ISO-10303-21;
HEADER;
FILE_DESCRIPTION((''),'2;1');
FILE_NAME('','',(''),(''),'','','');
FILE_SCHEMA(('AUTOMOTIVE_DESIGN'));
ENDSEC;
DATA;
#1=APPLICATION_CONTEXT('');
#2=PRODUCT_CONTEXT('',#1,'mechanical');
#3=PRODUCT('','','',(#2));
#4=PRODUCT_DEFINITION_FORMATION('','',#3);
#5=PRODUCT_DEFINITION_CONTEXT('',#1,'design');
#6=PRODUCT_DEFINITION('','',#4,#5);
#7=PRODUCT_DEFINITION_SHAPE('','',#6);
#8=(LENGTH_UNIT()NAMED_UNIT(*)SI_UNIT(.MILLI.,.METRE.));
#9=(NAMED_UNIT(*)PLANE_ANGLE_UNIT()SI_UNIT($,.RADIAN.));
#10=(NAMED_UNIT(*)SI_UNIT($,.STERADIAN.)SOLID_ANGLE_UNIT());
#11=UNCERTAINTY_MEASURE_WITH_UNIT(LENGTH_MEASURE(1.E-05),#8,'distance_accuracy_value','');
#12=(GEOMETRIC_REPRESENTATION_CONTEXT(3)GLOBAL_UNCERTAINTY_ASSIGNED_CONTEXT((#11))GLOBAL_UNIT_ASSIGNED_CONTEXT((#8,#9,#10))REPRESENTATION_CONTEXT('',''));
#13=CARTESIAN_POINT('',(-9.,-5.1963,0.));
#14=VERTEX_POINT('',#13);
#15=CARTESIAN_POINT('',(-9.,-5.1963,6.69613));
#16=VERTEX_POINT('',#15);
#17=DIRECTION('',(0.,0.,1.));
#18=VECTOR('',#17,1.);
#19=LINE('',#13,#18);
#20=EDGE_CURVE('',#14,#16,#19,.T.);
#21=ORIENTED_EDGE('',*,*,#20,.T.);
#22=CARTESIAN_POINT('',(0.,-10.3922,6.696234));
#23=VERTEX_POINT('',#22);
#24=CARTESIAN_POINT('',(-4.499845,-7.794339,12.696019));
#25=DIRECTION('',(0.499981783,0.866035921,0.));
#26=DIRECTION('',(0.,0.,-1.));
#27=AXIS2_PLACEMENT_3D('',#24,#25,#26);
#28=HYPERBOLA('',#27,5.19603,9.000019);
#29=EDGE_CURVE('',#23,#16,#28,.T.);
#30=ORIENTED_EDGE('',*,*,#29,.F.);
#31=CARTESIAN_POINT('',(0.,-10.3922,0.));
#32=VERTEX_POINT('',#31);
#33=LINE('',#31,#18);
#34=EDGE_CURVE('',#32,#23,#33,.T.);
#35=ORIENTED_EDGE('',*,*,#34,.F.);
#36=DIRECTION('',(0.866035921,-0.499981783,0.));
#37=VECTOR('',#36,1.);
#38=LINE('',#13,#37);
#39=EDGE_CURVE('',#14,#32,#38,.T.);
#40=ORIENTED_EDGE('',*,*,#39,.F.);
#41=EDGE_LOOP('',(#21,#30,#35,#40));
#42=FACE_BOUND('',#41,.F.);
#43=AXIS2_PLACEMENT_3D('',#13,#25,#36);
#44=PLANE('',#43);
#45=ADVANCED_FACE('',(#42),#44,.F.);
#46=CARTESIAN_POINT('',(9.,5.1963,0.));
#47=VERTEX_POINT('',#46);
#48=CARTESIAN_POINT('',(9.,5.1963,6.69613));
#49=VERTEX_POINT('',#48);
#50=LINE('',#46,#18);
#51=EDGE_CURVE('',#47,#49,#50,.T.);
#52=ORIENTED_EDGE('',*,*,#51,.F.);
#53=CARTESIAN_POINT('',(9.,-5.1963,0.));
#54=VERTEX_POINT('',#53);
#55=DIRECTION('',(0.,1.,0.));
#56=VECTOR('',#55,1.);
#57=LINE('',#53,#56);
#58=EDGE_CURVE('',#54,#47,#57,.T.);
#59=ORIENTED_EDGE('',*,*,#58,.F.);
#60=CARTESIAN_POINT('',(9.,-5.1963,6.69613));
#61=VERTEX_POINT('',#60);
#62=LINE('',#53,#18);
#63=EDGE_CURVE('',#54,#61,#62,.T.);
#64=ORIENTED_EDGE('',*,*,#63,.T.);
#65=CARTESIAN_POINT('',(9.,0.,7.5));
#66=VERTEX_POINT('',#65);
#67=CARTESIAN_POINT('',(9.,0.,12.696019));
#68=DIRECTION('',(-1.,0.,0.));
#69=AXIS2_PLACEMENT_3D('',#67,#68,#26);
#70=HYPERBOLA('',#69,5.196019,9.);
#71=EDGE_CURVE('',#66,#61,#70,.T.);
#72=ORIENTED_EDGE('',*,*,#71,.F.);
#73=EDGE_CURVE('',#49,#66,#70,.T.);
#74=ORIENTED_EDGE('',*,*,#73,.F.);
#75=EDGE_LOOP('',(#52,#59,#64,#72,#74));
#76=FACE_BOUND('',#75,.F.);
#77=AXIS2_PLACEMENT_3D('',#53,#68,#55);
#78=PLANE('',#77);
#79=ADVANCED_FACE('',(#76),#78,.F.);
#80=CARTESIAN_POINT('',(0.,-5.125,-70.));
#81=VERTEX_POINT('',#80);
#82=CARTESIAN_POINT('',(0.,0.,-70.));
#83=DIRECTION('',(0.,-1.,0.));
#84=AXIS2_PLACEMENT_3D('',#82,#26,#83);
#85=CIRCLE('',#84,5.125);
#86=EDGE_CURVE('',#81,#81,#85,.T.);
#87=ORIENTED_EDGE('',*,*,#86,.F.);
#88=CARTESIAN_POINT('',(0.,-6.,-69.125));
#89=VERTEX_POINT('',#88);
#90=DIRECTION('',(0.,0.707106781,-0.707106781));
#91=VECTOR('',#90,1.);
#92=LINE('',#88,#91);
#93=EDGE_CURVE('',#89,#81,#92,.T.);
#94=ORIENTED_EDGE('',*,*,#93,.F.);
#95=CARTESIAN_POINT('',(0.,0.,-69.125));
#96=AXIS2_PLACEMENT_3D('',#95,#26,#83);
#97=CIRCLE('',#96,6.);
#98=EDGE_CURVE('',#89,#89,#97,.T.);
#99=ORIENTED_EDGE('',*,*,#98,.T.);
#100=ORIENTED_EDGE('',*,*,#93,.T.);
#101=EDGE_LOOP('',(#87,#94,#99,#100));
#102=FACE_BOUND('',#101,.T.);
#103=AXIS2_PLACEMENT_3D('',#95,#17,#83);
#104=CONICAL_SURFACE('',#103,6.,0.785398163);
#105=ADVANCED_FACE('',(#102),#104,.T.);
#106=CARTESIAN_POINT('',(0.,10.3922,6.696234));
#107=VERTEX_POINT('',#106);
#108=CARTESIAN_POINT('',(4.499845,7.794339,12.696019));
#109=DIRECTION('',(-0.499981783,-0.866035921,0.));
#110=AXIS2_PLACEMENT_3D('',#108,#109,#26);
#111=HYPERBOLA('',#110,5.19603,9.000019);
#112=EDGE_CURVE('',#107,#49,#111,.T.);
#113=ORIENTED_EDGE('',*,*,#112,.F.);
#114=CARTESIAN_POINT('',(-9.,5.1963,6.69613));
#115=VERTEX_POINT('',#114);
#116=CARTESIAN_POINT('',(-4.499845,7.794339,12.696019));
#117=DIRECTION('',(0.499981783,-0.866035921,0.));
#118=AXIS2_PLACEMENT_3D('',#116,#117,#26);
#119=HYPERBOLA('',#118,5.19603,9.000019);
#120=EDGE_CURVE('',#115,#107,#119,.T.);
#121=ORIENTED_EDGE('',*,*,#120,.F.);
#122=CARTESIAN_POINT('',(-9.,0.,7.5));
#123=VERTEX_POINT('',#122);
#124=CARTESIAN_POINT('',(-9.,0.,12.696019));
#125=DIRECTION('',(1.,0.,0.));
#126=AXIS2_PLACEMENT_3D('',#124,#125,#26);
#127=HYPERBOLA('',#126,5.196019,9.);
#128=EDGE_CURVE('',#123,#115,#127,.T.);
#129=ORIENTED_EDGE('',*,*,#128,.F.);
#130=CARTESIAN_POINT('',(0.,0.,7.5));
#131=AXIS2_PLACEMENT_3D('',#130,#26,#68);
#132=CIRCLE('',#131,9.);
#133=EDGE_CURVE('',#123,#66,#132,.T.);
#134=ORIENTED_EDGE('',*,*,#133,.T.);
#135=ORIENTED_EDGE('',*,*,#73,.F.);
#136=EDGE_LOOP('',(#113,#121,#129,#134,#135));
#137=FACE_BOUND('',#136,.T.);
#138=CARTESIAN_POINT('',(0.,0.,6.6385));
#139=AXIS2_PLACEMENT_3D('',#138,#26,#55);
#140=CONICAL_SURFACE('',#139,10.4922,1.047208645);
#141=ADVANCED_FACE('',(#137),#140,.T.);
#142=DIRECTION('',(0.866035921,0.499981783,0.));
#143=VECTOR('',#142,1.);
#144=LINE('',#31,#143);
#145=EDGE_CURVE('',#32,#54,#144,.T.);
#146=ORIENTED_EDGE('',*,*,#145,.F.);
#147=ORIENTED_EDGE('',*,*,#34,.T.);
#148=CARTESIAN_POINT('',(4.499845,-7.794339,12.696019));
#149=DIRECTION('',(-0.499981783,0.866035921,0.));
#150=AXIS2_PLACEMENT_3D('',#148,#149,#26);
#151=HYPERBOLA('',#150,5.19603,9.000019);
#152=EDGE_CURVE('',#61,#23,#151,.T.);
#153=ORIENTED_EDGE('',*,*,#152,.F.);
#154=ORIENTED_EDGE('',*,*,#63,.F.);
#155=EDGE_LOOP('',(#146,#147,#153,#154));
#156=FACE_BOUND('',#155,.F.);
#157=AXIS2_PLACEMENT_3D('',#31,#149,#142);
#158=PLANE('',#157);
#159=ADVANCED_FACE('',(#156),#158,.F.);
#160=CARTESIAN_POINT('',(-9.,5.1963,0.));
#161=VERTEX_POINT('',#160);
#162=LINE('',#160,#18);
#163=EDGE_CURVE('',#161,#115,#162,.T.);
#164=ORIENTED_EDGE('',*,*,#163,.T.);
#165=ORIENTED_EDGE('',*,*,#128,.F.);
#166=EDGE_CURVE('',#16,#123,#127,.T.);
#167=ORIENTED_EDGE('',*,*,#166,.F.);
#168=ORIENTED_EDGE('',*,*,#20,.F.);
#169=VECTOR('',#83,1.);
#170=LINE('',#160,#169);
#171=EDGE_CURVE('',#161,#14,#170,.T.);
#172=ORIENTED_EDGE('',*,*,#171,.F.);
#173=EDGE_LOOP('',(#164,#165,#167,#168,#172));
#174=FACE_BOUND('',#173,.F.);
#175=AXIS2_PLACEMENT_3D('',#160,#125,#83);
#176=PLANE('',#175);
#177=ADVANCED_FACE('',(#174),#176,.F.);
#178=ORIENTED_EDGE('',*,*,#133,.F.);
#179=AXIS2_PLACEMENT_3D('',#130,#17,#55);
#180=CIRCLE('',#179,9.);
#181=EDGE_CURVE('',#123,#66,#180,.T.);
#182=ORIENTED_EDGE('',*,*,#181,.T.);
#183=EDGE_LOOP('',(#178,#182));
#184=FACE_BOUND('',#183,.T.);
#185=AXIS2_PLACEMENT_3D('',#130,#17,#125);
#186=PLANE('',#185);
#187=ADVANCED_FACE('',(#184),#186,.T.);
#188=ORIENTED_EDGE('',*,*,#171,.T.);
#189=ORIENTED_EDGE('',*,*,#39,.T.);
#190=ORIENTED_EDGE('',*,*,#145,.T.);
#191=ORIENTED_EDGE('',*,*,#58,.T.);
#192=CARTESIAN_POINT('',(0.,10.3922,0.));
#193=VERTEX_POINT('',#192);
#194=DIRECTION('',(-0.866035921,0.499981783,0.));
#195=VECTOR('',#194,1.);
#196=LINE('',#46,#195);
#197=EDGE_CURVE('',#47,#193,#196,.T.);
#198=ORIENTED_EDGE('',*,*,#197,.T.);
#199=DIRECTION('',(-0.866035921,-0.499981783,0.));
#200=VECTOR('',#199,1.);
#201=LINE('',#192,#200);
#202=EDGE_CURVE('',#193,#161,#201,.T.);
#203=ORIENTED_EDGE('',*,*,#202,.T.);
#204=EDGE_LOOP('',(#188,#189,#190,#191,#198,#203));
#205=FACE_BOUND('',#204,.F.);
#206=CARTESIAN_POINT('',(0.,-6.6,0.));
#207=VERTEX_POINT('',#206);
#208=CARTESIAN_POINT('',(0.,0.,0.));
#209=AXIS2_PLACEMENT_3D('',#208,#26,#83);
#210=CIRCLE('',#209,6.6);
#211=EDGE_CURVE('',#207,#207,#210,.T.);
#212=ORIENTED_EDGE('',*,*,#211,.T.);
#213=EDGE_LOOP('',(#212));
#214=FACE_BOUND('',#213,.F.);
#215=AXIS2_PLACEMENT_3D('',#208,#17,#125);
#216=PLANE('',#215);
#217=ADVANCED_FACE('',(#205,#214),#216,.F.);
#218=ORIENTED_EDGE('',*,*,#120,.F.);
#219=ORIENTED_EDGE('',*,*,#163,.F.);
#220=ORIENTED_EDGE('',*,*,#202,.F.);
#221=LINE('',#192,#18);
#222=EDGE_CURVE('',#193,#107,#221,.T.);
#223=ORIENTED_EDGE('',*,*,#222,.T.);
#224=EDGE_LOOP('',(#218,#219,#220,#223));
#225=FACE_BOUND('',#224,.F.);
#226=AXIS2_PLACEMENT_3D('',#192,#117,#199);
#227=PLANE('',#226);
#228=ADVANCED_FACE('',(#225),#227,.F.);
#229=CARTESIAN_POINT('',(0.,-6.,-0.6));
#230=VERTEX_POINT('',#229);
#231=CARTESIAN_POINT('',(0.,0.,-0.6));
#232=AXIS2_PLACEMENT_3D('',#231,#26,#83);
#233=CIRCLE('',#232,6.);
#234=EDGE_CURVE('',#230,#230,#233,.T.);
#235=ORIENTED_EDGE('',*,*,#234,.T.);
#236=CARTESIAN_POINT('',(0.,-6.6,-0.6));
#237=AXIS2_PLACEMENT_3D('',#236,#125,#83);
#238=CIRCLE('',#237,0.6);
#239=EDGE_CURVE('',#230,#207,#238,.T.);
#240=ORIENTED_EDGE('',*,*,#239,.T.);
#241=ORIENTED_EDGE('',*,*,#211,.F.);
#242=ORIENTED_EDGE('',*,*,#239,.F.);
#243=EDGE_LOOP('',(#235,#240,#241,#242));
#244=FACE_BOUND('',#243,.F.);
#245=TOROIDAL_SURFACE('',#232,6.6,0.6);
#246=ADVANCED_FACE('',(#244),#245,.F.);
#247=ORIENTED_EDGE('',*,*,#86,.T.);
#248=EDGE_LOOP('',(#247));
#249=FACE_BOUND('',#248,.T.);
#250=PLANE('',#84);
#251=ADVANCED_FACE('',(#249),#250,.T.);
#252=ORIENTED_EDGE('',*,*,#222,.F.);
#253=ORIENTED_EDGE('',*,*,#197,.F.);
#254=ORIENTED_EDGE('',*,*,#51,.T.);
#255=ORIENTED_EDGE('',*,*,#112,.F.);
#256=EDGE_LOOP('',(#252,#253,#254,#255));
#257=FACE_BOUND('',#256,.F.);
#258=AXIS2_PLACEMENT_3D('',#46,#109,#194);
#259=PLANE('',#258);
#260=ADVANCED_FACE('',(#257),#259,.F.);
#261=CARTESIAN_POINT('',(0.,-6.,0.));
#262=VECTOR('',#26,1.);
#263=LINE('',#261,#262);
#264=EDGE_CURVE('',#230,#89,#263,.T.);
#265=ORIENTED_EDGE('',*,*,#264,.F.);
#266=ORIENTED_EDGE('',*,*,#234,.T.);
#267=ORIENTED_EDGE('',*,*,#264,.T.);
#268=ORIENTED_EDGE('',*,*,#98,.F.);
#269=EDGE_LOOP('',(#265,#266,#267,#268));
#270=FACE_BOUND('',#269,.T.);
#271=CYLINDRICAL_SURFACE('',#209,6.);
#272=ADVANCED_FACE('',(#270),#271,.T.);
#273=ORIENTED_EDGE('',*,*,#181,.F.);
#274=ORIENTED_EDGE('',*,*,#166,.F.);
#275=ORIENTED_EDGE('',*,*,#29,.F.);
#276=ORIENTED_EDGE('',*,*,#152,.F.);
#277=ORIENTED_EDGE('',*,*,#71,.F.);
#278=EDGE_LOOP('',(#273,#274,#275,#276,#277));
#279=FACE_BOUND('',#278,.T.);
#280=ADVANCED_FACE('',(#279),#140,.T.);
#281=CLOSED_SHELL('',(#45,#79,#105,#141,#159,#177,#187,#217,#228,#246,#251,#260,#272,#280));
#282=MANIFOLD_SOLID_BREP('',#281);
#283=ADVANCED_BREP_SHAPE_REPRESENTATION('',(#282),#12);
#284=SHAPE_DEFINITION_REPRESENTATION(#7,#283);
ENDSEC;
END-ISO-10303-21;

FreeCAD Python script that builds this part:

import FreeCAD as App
import Part
import Sketcher

V = App.Vector
Q = App.Units.Quantity


def edges_at(feature, points):
    """Names of the edges that pass closest to the given points."""
    edges = feature.Shape.Edges
    near = lambda p: min(range(len(edges)), key=lambda i: edges[i].distToShape(Part.Vertex(*p))[0])
    return sorted({f"Edge{near(p) + 1}" for p in points})


def add_polygon(sketch, points):
    """Adds a closed chain of lines whose ends are joined by coincident constraints."""
    first, n = sketch.GeometryCount, len(points)
    for a, b in zip(points, points[1:] + points[:1]):
        sketch.addGeometry(Part.LineSegment(App.Vector(*a, 0), App.Vector(*b, 0)), False)
    for i in range(n):
        sketch.addConstraint(Sketcher.Constraint("Coincident", first + i, 2, first + (i + 1) % n, 1))

doc = App.newDocument("Part")
params = doc.addObject("Spreadsheet::Sheet", "Params")
for row, (alias, value) in enumerate([
    ("pad1_length", "7.5 mm"),
    ("groove_angle", "360 deg"),
    ("sketch3_width", "6 mm"),
    ("sketch3_height", "70 mm"),
    ("revolution_angle", "360 deg"),
    ("chamfer_size", "0.875 mm"),
    ("fillet_radius", "0.6 mm"),
], start=1):
    params.set(f"A{row}", alias)
    params.set(f"B{row}", "=" + value)
    params.setAlias(f"B{row}", alias)

body = doc.addObject("PartDesign::Body", "Body")

# Sketch on XY plane
sketch1 = body.newObject("Sketcher::SketchObject", "Sketch")
sketch1.AttachmentSupport = (doc.getObject("XY_Plane"), [""])
sketch1.MapMode = "FlatFace"
add_polygon(sketch1, [(0, 10), (-9, 5), (-9, -5), (0, -10), (9, -5), (9, 5)])  # lines 0-5
sketch1.addConstraint([
    Sketcher.Constraint("Vertical", 1),
    Sketcher.Constraint("Vertical", 4),
    Sketcher.Constraint("Symmetric", 0, 2, 3, 2, -1, 1),
    Sketcher.Constraint("Symmetric", 2, 2, 5, 2, -1, 1),
    Sketcher.Constraint("PointOnObject", 2, 2, -2),
    Sketcher.Constraint("Parallel", 2, 5),
    Sketcher.Constraint("Horizontal", 1, 2, 3, 2),
    Sketcher.Constraint("DistanceX", 1, 2, 3, 2, Q("18 mm")),
    Sketcher.Constraint("DistanceY", 1, 2, 1, 1, Q("10.3926 mm")),
    Sketcher.Constraint("DistanceY", 2, 2, 1, 2, Q("5.196 mm")),
])
pad1 = body.newObject("PartDesign::Pad", "Pad")
pad1.Profile = sketch1
pad1.setExpression("Length", "Params.pad1_length")

# Sketch on YZ plane
sketch2 = body.newObject("Sketcher::SketchObject", "Sketch001")
sketch2.AttachmentSupport = (doc.getObject("YZ_Plane"), [""])
sketch2.MapMode = "FlatFace"
add_polygon(sketch2, [(9, 7.5), (10.5, 6.6), (10.5, 7.5)])  # lines 0-2
sketch2.addConstraint([
    Sketcher.Constraint("Vertical", 1),
    Sketcher.Constraint("Horizontal", 2),
    Sketcher.Constraint("DistanceX", -1, 1, 2, 2, Q("9 mm")),
    Sketcher.Constraint("Angle", 0, Q("-29.9994 deg")),
    Sketcher.Constraint("DistanceY", -1, 1, 1, 2, Q("7.5 mm")),
    Sketcher.Constraint("Distance", 0, Q("1.723 mm")),
])
groove = body.newObject("PartDesign::Groove", "Groove")
groove.Profile = sketch2
groove.ReferenceAxis = (sketch2, ["V_Axis"])
groove.setExpression("Angle", "Params.groove_angle")

# Sketch on YZ plane
sketch3 = body.newObject("Sketcher::SketchObject", "Sketch002")
sketch3.AttachmentSupport = (doc.getObject("YZ_Plane"), [""])
sketch3.MapMode = "FlatFace"
add_polygon(sketch3, [(-6, -70), (0, -70), (0, 0), (-6, 0)])  # lines 0-3
sketch3.addConstraint([
    Sketcher.Constraint("Horizontal", 0),
    Sketcher.Constraint("Vertical", 1),
    Sketcher.Constraint("Horizontal", 2),
    Sketcher.Constraint("Vertical", 3),
    Sketcher.Constraint("Coincident", 1, 2, -1, 1),
    Sketcher.Constraint("DistanceX", 0, 1, 0, 2, Q("6 mm")),
    Sketcher.Constraint("DistanceY", 1, 1, 1, 2, Q("70 mm")),
])
sketch3.setExpression("Constraints[9]", "Params.sketch3_width")
sketch3.setExpression("Constraints[10]", "Params.sketch3_height")
revolution = body.newObject("PartDesign::Revolution", "Revolution")
revolution.Profile = sketch3
revolution.ReferenceAxis = (sketch3, ["V_Axis"])
revolution.setExpression("Angle", "Params.revolution_angle")
doc.recompute()

chamfer = body.newObject("PartDesign::Chamfer", "Chamfer")
chamfer.Base = (revolution, edges_at(revolution, [(0, 6, -70)]))
chamfer.setExpression("Size", "Params.chamfer_size")
doc.recompute()

fillet = body.newObject("PartDesign::Fillet", "Fillet")
fillet.Base = (chamfer, edges_at(chamfer, [(0, 6, 0)]))
fillet.setExpression("Radius", "Params.fillet_radius")

doc.recompute()
